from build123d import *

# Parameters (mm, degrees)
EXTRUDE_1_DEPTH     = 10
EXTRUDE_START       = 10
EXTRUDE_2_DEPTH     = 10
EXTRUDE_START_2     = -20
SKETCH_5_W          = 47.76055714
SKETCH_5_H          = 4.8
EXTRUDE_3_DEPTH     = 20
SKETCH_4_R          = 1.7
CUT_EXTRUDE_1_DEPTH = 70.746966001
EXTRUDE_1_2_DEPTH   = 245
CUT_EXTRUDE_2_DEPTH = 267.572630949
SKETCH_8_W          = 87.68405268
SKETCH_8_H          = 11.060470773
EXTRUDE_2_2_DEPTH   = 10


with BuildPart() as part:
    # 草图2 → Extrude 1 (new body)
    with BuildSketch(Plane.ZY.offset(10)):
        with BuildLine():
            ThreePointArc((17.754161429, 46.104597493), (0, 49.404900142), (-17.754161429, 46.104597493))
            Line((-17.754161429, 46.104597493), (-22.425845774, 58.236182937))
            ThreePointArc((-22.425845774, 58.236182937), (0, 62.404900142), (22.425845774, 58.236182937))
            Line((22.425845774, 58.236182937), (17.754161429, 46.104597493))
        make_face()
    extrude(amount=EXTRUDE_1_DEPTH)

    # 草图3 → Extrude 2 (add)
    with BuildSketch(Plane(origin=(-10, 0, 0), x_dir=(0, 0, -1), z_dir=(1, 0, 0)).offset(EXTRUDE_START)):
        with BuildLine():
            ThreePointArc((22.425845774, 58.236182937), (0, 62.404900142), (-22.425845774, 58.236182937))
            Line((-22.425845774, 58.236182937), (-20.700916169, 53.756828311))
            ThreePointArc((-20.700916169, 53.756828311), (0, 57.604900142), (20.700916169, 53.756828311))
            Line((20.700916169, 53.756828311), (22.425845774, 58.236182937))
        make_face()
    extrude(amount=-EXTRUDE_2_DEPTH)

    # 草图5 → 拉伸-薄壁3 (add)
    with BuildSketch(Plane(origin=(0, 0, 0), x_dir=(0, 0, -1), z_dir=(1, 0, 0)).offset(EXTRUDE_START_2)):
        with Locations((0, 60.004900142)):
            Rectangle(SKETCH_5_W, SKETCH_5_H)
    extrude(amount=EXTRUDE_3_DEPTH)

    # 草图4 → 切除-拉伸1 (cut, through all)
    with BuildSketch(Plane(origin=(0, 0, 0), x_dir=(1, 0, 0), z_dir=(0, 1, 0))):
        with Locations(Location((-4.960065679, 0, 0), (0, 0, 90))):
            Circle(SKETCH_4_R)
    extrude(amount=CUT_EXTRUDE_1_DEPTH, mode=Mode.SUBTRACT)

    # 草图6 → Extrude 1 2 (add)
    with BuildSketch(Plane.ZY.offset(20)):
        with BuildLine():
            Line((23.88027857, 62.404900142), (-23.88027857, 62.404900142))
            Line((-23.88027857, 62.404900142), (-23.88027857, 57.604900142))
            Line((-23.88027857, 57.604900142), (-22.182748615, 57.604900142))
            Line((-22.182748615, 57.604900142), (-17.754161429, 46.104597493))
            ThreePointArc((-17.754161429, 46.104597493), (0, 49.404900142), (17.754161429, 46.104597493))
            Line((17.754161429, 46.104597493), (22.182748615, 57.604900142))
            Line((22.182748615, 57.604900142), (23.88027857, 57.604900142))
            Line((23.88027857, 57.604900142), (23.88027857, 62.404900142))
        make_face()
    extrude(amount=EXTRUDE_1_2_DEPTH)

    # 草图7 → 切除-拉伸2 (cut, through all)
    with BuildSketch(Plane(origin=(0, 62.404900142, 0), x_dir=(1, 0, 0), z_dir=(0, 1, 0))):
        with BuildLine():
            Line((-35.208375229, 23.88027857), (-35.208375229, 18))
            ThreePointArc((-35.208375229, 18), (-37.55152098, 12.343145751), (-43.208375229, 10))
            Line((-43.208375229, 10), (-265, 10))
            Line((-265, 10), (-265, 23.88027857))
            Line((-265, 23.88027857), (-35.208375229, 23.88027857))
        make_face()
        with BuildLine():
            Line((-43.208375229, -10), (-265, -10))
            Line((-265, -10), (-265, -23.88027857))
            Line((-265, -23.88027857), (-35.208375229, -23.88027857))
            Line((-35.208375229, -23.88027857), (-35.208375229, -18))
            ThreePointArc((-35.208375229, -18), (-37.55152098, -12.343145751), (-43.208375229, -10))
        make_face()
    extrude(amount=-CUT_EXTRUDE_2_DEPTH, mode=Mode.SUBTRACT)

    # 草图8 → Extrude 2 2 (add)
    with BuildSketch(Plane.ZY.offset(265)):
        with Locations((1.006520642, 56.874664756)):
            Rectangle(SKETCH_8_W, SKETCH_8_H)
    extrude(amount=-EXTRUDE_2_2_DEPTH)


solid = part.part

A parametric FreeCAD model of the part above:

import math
import FreeCAD as App
import Part
import Sketcher


def add_polygon(sketch, points):
    """Adds a closed chain of lines whose ends are joined by coincident constraints."""
    first, n = sketch.GeometryCount, len(points)
    for a, b in zip(points, points[1:] + points[:1]):
        sketch.addGeometry(Part.LineSegment(App.Vector(*a, 0), App.Vector(*b, 0)), False)
    for i in range(n):
        sketch.addConstraint(Sketcher.Constraint("Coincident", first + i, 2, first + (i + 1) % n, 1))

doc = App.newDocument("Part")
body = doc.addObject("PartDesign::Body", "Body")

# Sketch on YZ plane
sketch1 = body.newObject("Sketcher::SketchObject", "Sketch")
sketch1.AttachmentSupport = (doc.getObject("YZ_Plane"), [""])
sketch1.MapMode = "FlatFace"
sketch1.AttachmentOffset = App.Placement(App.Vector(0, 0, -10), App.Rotation())
sketch1.addGeometry([
    Part.ArcOfCircle(Part.Circle(App.Vector(0, 0, 0), App.Vector(0, 0, 1), 49), math.radians(-21), math.radians(21)),
    Part.LineSegment(App.Vector(46, 18, 0), App.Vector(58, 22, 0)),
    Part.ArcOfCircle(Part.Circle(App.Vector(0, 0, 0), App.Vector(0, 0, 1), 62), math.radians(-21), math.radians(21)),
    Part.LineSegment(App.Vector(58, -22, 0), App.Vector(46, -18, 0)),
], False)
sketch1.addConstraint([
    Sketcher.Constraint("Coincident", 0, 2, 1, 1),
    Sketcher.Constraint("Coincident", 1, 2, 2, 2),
    Sketcher.Constraint("Coincident", 2, 1, 3, 1),
    Sketcher.Constraint("Coincident", 3, 2, 0, 1),
    Sketcher.Constraint("Coincident", 0, 3, -1, 1),
    Sketcher.Constraint("Coincident", 2, 3, -1, 1),
    Sketcher.Constraint("Vertical", 1, 2, 2, 1),
    Sketcher.Constraint("Vertical", 0, 2, 3, 2),
    Sketcher.Constraint("Distance", 1, 13.0),
    Sketcher.Constraint("Radius", 0, 49.4049),
    Sketcher.Constraint("DistanceY", -1, 1, 0, 2, 17.754161),
    Sketcher.Constraint("DistanceY", 2, 1, 1, 2, 44.851692),
])
pad1 = body.newObject("PartDesign::Pad", "Pad")
pad1.Profile = sketch1
pad1.Length = 10
pad1.Reversed = True

# Sketch on YZ plane
sketch2 = body.newObject("Sketcher::SketchObject", "Sketch001")
sketch2.AttachmentSupport = (doc.getObject("YZ_Plane"), [""])
sketch2.MapMode = "FlatFace"
sketch2.addGeometry([
    Part.ArcOfCircle(Part.Circle(App.Vector(0, 0, 0), App.Vector(0, 0, 1), 62.4), math.radians(-21), math.radians(21)),
    Part.LineSegment(App.Vector(58.2, 22.4, 0), App.Vector(53.8, 20.7, 0)),
    Part.ArcOfCircle(Part.Circle(App.Vector(0, 0, 0), App.Vector(0, 0, 1), 57.6), math.radians(-21), math.radians(21)),
    Part.LineSegment(App.Vector(53.8, -20.7, 0), App.Vector(58.2, -22.4, 0)),
], False)
sketch2.addConstraint([
    Sketcher.Constraint("Coincident", 0, 2, 1, 1),
    Sketcher.Constraint("Coincident", 1, 2, 2, 2),
    Sketcher.Constraint("Coincident", 2, 1, 3, 1),
    Sketcher.Constraint("Coincident", 3, 2, 0, 1),
    Sketcher.Constraint("Coincident", 0, 3, -1, 1),
    Sketcher.Constraint("Coincident", 2, 3, -1, 1),
    Sketcher.Constraint("Vertical", 1, 2, 2, 1),
    Sketcher.Constraint("Vertical", 0, 2, 3, 2),
    Sketcher.Constraint("Distance", 1, 4.8),
    Sketcher.Constraint("Radius", 0, 62.4049),
    Sketcher.Constraint("DistanceX", -1, 1, 1, 2, 53.756828),
    Sketcher.Constraint("DistanceY", 1, 2, 0, 2, 1.72493),
])
pad2 = body.newObject("PartDesign::Pad", "Pad001")
pad2.Profile = sketch2
pad2.Length = 10
pad2.Reversed = True

# Sketch on YZ plane
sketch3 = body.newObject("Sketcher::SketchObject", "Sketch002")
sketch3.AttachmentSupport = (doc.getObject("YZ_Plane"), [""])
sketch3.MapMode = "FlatFace"
sketch3.AttachmentOffset = App.Placement(App.Vector(0, 0, -20), App.Rotation())
add_polygon(sketch3, [(62.4, 23.9), (57.6, 23.9), (57.6, -23.9), (62.4, -23.9)])  # lines 0-3
sketch3.addConstraint([
    Sketcher.Constraint("Horizontal", 0),
    Sketcher.Constraint("Vertical", 1),
    Sketcher.Constraint("Horizontal", 2),
    Sketcher.Constraint("Vertical", 3),
    Sketcher.Constraint("DistanceX", 0, 2, 0, 1, 4.8),
    Sketcher.Constraint("DistanceX", -1, 1, 0, 2, 57.6049),
    Sketcher.Constraint("DistanceY", 1, 2, 1, 1, 47.760557),
    Sketcher.Constraint("DistanceY", -1, 1, 0, 2, 23.880279),
])
pad3 = body.newObject("PartDesign::Pad", "Pad002")
pad3.Profile = sketch3
pad3.Length = 20

# Sketch on XZ plane
sketch4 = body.newObject("Sketcher::SketchObject", "Sketch003")
sketch4.AttachmentSupport = (doc.getObject("XZ_Plane"), [""])
sketch4.MapMode = "FlatFace"
sketch4.addGeometry(Part.Circle(App.Vector(-5, 0, 0), App.Vector(0, 0, 1), 1.7), False)
sketch4.addConstraint([
    Sketcher.Constraint("PointOnObject", 0, 3, -1),
    Sketcher.Constraint("Diameter", 0, 3.4),
    Sketcher.Constraint("DistanceX", 0, 3, -1, 1, 4.960066),
])
pocket1 = body.newObject("PartDesign::Pocket", "Pocket")
pocket1.Profile = sketch4
pocket1.Type = "ThroughAll"

# Sketch on YZ plane
sketch5 = body.newObject("Sketcher::SketchObject", "Sketch004")
sketch5.AttachmentSupport = (doc.getObject("YZ_Plane"), [""])
sketch5.MapMode = "FlatFace"
sketch5.AttachmentOffset = App.Placement(App.Vector(0, 0, -20), App.Rotation())
sketch5.addGeometry([
    Part.LineSegment(App.Vector(62.4, 23.9, 0), App.Vector(62.4, -23.9, 0)),  # 0
    Part.LineSegment(App.Vector(62.4, -23.9, 0), App.Vector(57.6, -23.9, 0)),  # 1
    Part.LineSegment(App.Vector(57.6, -23.9, 0), App.Vector(57.6, -22.2, 0)),  # 2
    Part.LineSegment(App.Vector(57.6, -22.2, 0), App.Vector(46.1, -17.8, 0)),  # 3
    Part.ArcOfCircle(Part.Circle(App.Vector(0, 0, 0), App.Vector(0, 0, 1), 49.4), math.radians(-21), math.radians(21)),  # 4
    Part.LineSegment(App.Vector(46.1, 17.8, 0), App.Vector(57.6, 22.2, 0)),  # 5
    Part.LineSegment(App.Vector(57.6, 22.2, 0), App.Vector(57.6, 23.9, 0)),  # 6
    Part.LineSegment(App.Vector(57.6, 23.9, 0), App.Vector(62.4, 23.9, 0)),  # 7
], False)
sketch5.addConstraint([
    Sketcher.Constraint("Coincident", 0, 2, 1, 1),
    Sketcher.Constraint("Coincident", 1, 2, 2, 1),
    Sketcher.Constraint("Coincident", 2, 2, 3, 1),
    Sketcher.Constraint("Coincident", 3, 2, 4, 1),
    Sketcher.Constraint("Coincident", 4, 2, 5, 1),
    Sketcher.Constraint("Coincident", 5, 2, 6, 1),
    Sketcher.Constraint("Coincident", 6, 2, 7, 1),
    Sketcher.Constraint("Coincident", 7, 2, 0, 1),
    Sketcher.Constraint("Vertical", 0),
    Sketcher.Constraint("Horizontal", 1),
    Sketcher.Constraint("Vertical", 2),
    Sketcher.Constraint("Vertical", 6),
    Sketcher.Constraint("Horizontal", 7),
    Sketcher.Constraint("Coincident", 4, 3, -1, 1),
    Sketcher.Constraint("Symmetric", 2, 2, 5, 2, -1),
    Sketcher.Constraint("Vertical", 3, 2, 4, 2),
    Sketcher.Constraint("Equal", 2, 6),
    Sketcher.Constraint("DistanceX", 1, 2, 1, 1, 4.8),
    Sketcher.Constraint("Radius", 4, 49.4049),
    Sketcher.Constraint("DistanceY", 2, 1, 2, 2, 1.69753),
    Sketcher.Constraint("DistanceX", -1, 1, 0, 2, 62.4049),
    Sketcher.Constraint("Distance", 3, 12.323528),
    Sketcher.Constraint("DistanceY", 3, 2, -1, 1, 17.754161),
])
pad4 = body.newObject("PartDesign::Pad", "Pad003")
pad4.Profile = sketch5
pad4.Length = 245
pad4.Reversed = True

# Sketch on XZ plane
sketch6 = body.newObject("Sketcher::SketchObject", "Sketch005")
sketch6.AttachmentSupport = (doc.getObject("XZ_Plane"), [""])
sketch6.MapMode = "FlatFace"
sketch6.AttachmentOffset = App.Placement(App.Vector(0, 0, -62.4049), App.Rotation())
sketch6.addGeometry([
    Part.LineSegment(App.Vector(-35, -18, 0), App.Vector(-35, -24, 0)),  # 0
    Part.LineSegment(App.Vector(-35, -24, 0), App.Vector(-265, -24, 0)),  # 1
    Part.LineSegment(App.Vector(-265, -24, 0), App.Vector(-265, -10, 0)),  # 2
    Part.LineSegment(App.Vector(-265, -10, 0), App.Vector(-43, -10, 0)),  # 3
    Part.ArcOfCircle(Part.Circle(App.Vector(-43, -18, 0), App.Vector(0, 0, 1), 8), math.radians(0), math.radians(90)),  # 4
    Part.LineSegment(App.Vector(-43, 10, 0), App.Vector(-265, 10, 0)),  # 5
    Part.LineSegment(App.Vector(-265, 10, 0), App.Vector(-265, 24, 0)),  # 6
    Part.LineSegment(App.Vector(-265, 24, 0), App.Vector(-35, 24, 0)),  # 7
    Part.LineSegment(App.Vector(-35, 24, 0), App.Vector(-35, 18, 0)),  # 8
    Part.ArcOfCircle(Part.Circle(App.Vector(-43, 18, 0), App.Vector(0, 0, 1), 8), math.radians(-90), math.radians(0)),  # 9
], False)
sketch6.addConstraint([
    Sketcher.Constraint("Coincident", 0, 2, 1, 1),
    Sketcher.Constraint("Coincident", 1, 2, 2, 1),
    Sketcher.Constraint("Coincident", 2, 2, 3, 1),
    Sketcher.Constraint("Tangent", 3, 2, 4, 2),
    Sketcher.Constraint("Tangent", 4, 1, 0, 1),
    Sketcher.Constraint("Coincident", 5, 2, 6, 1),
    Sketcher.Constraint("Coincident", 6, 2, 7, 1),
    Sketcher.Constraint("Coincident", 7, 2, 8, 1),
    Sketcher.Constraint("Tangent", 8, 2, 9, 2),
    Sketcher.Constraint("Tangent", 9, 1, 5, 1),
    Sketcher.Constraint("Vertical", 0),
    Sketcher.Constraint("Horizontal", 1),
    Sketcher.Constraint("Vertical", 2),
    Sketcher.Constraint("Horizontal", 3),
    Sketcher.Constraint("Horizontal", 5),
    Sketcher.Constraint("Vertical", 6),
    Sketcher.Constraint("Horizontal", 7),
    Sketcher.Constraint("Vertical", 8),
    Sketcher.Constraint("Equal", 4, 9),
    Sketcher.Constraint("Symmetric", 4, 3, 9, 3, -1),
    Sketcher.Constraint("Symmetric", 1, 2, 6, 2, -1),
    Sketcher.Constraint("Radius", 4, 8.0),
    Sketcher.Constraint("DistanceY", 4, 3, -1, 1, 18.0),
    Sketcher.Constraint("DistanceX", 1, 2, -1, 1, 265.0),
    Sketcher.Constraint("DistanceY", 0, 2, 0, 1, 5.880279),
    Sketcher.Constraint("DistanceX", 1, 2, 1, 1, 229.791625),
])
pocket2 = body.newObject("PartDesign::Pocket", "Pocket001")
pocket2.Profile = sketch6
pocket2.Type = "ThroughAll"
pocket2.Reversed = True

# Sketch on YZ plane
sketch7 = body.newObject("Sketcher::SketchObject", "Sketch006")
sketch7.AttachmentSupport = (doc.getObject("YZ_Plane"), [""])
sketch7.MapMode = "FlatFace"
sketch7.AttachmentOffset = App.Placement(App.Vector(0, 0, -265), App.Rotation())
add_polygon(sketch7, [(62, -43), (51, -43), (51, 45), (62, 45)])  # lines 0-3
sketch7.addConstraint([
    Sketcher.Constraint("Horizontal", 0),
    Sketcher.Constraint("Vertical", 1),
    Sketcher.Constraint("Horizontal", 2),
    Sketcher.Constraint("Vertical", 3),
    Sketcher.Constraint("DistanceX", 0, 2, 0, 1, 11.060471),
    Sketcher.Constraint("DistanceX", -1, 1, 2, 2, 62.4049),
    Sketcher.Constraint("DistanceY", 1, 1, 1, 2, 87.684053),
    Sketcher.Constraint("DistanceY", 0, 2, -1, 1, 42.835506),
])
pad5 = body.newObject("PartDesign::Pad", "Pad004")
pad5.Profile = sketch7
pad5.Length = 10

doc.recompute()
